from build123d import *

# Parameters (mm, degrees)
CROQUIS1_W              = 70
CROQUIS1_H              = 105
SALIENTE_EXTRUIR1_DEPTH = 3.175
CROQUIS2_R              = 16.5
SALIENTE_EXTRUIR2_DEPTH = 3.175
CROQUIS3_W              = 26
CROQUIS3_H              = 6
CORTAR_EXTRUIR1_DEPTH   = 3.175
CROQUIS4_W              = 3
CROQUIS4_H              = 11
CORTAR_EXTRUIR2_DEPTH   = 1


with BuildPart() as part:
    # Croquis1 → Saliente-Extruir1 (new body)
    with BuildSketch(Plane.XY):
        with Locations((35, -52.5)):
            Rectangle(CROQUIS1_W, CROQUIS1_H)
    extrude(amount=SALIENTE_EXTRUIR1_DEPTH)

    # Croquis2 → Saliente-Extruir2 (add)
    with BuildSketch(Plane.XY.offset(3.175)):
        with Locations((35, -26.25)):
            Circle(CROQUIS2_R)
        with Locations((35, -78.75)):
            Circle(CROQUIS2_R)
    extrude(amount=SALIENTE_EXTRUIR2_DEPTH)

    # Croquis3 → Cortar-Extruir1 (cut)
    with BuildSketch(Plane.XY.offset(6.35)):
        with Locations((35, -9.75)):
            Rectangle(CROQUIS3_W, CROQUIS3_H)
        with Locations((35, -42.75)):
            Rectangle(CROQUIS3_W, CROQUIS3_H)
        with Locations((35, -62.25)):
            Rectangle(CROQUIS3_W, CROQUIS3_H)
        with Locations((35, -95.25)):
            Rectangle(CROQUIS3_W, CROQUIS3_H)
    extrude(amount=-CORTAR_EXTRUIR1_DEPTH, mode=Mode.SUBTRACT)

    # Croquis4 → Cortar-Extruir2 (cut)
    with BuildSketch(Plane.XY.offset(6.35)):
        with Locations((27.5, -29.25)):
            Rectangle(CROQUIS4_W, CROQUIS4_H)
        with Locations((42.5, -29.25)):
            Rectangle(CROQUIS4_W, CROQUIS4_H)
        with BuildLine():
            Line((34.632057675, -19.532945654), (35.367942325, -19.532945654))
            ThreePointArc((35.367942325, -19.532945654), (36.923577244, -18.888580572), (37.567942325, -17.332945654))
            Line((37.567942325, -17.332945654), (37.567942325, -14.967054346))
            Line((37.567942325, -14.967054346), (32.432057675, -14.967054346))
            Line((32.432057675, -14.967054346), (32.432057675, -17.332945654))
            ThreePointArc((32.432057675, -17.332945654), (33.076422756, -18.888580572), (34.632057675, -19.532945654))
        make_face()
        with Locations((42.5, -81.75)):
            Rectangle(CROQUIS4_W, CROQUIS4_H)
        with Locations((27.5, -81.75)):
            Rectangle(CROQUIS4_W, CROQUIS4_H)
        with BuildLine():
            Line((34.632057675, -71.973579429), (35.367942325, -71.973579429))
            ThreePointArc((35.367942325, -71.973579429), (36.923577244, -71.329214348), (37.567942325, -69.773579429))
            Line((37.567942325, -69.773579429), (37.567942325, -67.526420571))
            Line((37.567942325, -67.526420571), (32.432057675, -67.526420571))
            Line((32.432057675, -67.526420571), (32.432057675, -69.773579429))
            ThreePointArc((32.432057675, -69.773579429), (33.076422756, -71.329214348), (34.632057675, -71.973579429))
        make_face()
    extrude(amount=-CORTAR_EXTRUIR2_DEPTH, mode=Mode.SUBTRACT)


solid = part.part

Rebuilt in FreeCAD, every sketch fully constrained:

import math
import FreeCAD as App
import Part
import Sketcher

V = App.Vector
Q = App.Units.Quantity

doc = App.newDocument("Part")
body = doc.addObject("PartDesign::Body", "Body")

# Sketch on XY plane
sketch1 = body.newObject("Sketcher::SketchObject", "Sketch")
sketch1.AttachmentSupport = (doc.getObject("XY_Plane"), [""])
sketch1.MapMode = "FlatFace"
sketch1.addGeometry(Part.LineSegment(V(0, 0, 0), V(0, -105, 0)), False)
sketch1.addGeometry(Part.LineSegment(V(0, -105, 0), V(70, -105, 0)), False)
sketch1.addGeometry(Part.LineSegment(V(70, -105, 0), V(70, 0, 0)), False)
sketch1.addGeometry(Part.LineSegment(V(70, 0, 0), V(0, 0, 0)), False)
sketch1.addConstraint(Sketcher.Constraint("Coincident", 0, 2, 1, 1))
sketch1.addConstraint(Sketcher.Constraint("Coincident", 1, 2, 2, 1))
sketch1.addConstraint(Sketcher.Constraint("Coincident", 2, 2, 3, 1))
sketch1.addConstraint(Sketcher.Constraint("Coincident", 3, 2, 0, 1))
sketch1.addConstraint(Sketcher.Constraint("Vertical", 0))
sketch1.addConstraint(Sketcher.Constraint("Horizontal", 1))
sketch1.addConstraint(Sketcher.Constraint("Vertical", 2))
sketch1.addConstraint(Sketcher.Constraint("Horizontal", 3))
sketch1.addConstraint(Sketcher.Constraint("Coincident", 3, 2, -1, 1))
sketch1.addConstraint(Sketcher.Constraint("DistanceX", 1, 1, 1, 2, Q("70 mm")))
sketch1.addConstraint(Sketcher.Constraint("DistanceY", 0, 2, 0, 1, Q("105 mm")))
pad1 = body.newObject("PartDesign::Pad", "Pad")
pad1.Profile = sketch1
pad1.Length = 3.175

# Sketch on XY plane
sketch2 = body.newObject("Sketcher::SketchObject", "Sketch001")
sketch2.AttachmentSupport = (doc.getObject("XY_Plane"), [""])
sketch2.MapMode = "FlatFace"
sketch2.AttachmentOffset = App.Placement(V(0, 0, 3.175), App.Rotation())
sketch2.addGeometry(Part.Circle(V(35, -26, 0), V(0, 0, 1), 16), False)
sketch2.addGeometry(Part.Circle(V(35, -79, 0), V(0, 0, 1), 16), False)
sketch2.addConstraint(Sketcher.Constraint("Equal", 0, 1))
sketch2.addConstraint(Sketcher.Constraint("Vertical", 0, 3, 1, 3))
sketch2.addConstraint(Sketcher.Constraint("Diameter", 0, Q("33 mm")))
sketch2.addConstraint(Sketcher.Constraint("DistanceX", -1, 1, 0, 3, Q("35 mm")))
sketch2.addConstraint(Sketcher.Constraint("DistanceY", 1, 3, 0, 3, Q("52.5 mm")))
sketch2.addConstraint(Sketcher.Constraint("DistanceY", 0, 3, -1, 1, Q("26.25 mm")))
pad2 = body.newObject("PartDesign::Pad", "Pad001")
pad2.Profile = sketch2
pad2.Length = 3.175

# Sketch on XY plane
sketch3 = body.newObject("Sketcher::SketchObject", "Sketch002")
sketch3.AttachmentSupport = (doc.getObject("XY_Plane"), [""])
sketch3.MapMode = "FlatFace"
sketch3.AttachmentOffset = App.Placement(V(0, 0, 6.35), App.Rotation())
sketch3.addGeometry(Part.LineSegment(V(22, -7, 0), V(22, -13, 0)), False)
sketch3.addGeometry(Part.LineSegment(V(22, -13, 0), V(48, -13, 0)), False)
sketch3.addGeometry(Part.LineSegment(V(48, -13, 0), V(48, -7, 0)), False)
sketch3.addGeometry(Part.LineSegment(V(48, -7, 0), V(22, -7, 0)), False)
sketch3.addGeometry(Part.LineSegment(V(22, -40, 0), V(22, -46, 0)), False)
sketch3.addGeometry(Part.LineSegment(V(22, -46, 0), V(48, -46, 0)), False)
sketch3.addGeometry(Part.LineSegment(V(48, -46, 0), V(48, -40, 0)), False)
sketch3.addGeometry(Part.LineSegment(V(48, -40, 0), V(22, -40, 0)), False)
sketch3.addGeometry(Part.LineSegment(V(22, -59, 0), V(22, -65, 0)), False)
sketch3.addGeometry(Part.LineSegment(V(22, -65, 0), V(48, -65, 0)), False)
sketch3.addGeometry(Part.LineSegment(V(48, -65, 0), V(48, -59, 0)), False)
sketch3.addGeometry(Part.LineSegment(V(48, -59, 0), V(22, -59, 0)), False)
sketch3.addGeometry(Part.LineSegment(V(22, -92, 0), V(22, -98, 0)), False)
sketch3.addGeometry(Part.LineSegment(V(22, -98, 0), V(48, -98, 0)), False)
sketch3.addGeometry(Part.LineSegment(V(48, -98, 0), V(48, -92, 0)), False)
sketch3.addGeometry(Part.LineSegment(V(48, -92, 0), V(22, -92, 0)), False)
sketch3.addConstraint(Sketcher.Constraint("Coincident", 0, 2, 1, 1))
sketch3.addConstraint(Sketcher.Constraint("Coincident", 1, 2, 2, 1))
sketch3.addConstraint(Sketcher.Constraint("Coincident", 2, 2, 3, 1))
sketch3.addConstraint(Sketcher.Constraint("Coincident", 3, 2, 0, 1))
sketch3.addConstraint(Sketcher.Constraint("Coincident", 4, 2, 5, 1))
sketch3.addConstraint(Sketcher.Constraint("Coincident", 5, 2, 6, 1))
sketch3.addConstraint(Sketcher.Constraint("Coincident", 6, 2, 7, 1))
sketch3.addConstraint(Sketcher.Constraint("Coincident", 7, 2, 4, 1))
sketch3.addConstraint(Sketcher.Constraint("Coincident", 8, 2, 9, 1))
sketch3.addConstraint(Sketcher.Constraint("Coincident", 9, 2, 10, 1))
sketch3.addConstraint(Sketcher.Constraint("Coincident", 10, 2, 11, 1))
sketch3.addConstraint(Sketcher.Constraint("Coincident", 11, 2, 8, 1))
sketch3.addConstraint(Sketcher.Constraint("Coincident", 12, 2, 13, 1))
sketch3.addConstraint(Sketcher.Constraint("Coincident", 13, 2, 14, 1))
sketch3.addConstraint(Sketcher.Constraint("Coincident", 14, 2, 15, 1))
sketch3.addConstraint(Sketcher.Constraint("Coincident", 15, 2, 12, 1))
sketch3.addConstraint(Sketcher.Constraint("Vertical", 0))
sketch3.addConstraint(Sketcher.Constraint("Horizontal", 1))
sketch3.addConstraint(Sketcher.Constraint("Vertical", 2))
sketch3.addConstraint(Sketcher.Constraint("Horizontal", 3))
sketch3.addConstraint(Sketcher.Constraint("Vertical", 4))
sketch3.addConstraint(Sketcher.Constraint("Horizontal", 5))
sketch3.addConstraint(Sketcher.Constraint("Vertical", 6))
sketch3.addConstraint(Sketcher.Constraint("Horizontal", 7))
sketch3.addConstraint(Sketcher.Constraint("Vertical", 8))
sketch3.addConstraint(Sketcher.Constraint("Horizontal", 9))
sketch3.addConstraint(Sketcher.Constraint("Vertical", 10))
sketch3.addConstraint(Sketcher.Constraint("Horizontal", 11))
sketch3.addConstraint(Sketcher.Constraint("Vertical", 12))
sketch3.addConstraint(Sketcher.Constraint("Horizontal", 13))
sketch3.addConstraint(Sketcher.Constraint("Vertical", 14))
sketch3.addConstraint(Sketcher.Constraint("Horizontal", 15))
sketch3.addConstraint(Sketcher.Constraint("Vertical", 3, 2, 4, 2))
sketch3.addConstraint(Sketcher.Constraint("Vertical", 2, 2, 5, 2))
sketch3.addConstraint(Sketcher.Constraint("Vertical", 7, 2, 8, 2))
sketch3.addConstraint(Sketcher.Constraint("Vertical", 6, 2, 9, 2))
sketch3.addConstraint(Sketcher.Constraint("Vertical", 11, 2, 12, 2))
sketch3.addConstraint(Sketcher.Constraint("Vertical", 10, 2, 13, 2))
sketch3.addConstraint(Sketcher.Constraint("Equal", 2, 4))
sketch3.addConstraint(Sketcher.Constraint("Equal", 6, 8))
sketch3.addConstraint(Sketcher.Constraint("Equal", 10, 12))
sketch3.addConstraint(Sketcher.Constraint("DistanceX", 1, 1, 1, 2, Q("26 mm")))
sketch3.addConstraint(Sketcher.Constraint("DistanceY", 0, 2, 0, 1, Q("6 mm")))
sketch3.addConstraint(Sketcher.Constraint("DistanceX", -1, 1, 0, 2, Q("22 mm")))
sketch3.addConstraint(Sketcher.Constraint("DistanceY", 4, 2, 0, 2, Q("33 mm")))
sketch3.addConstraint(Sketcher.Constraint("DistanceY", 12, 2, 8, 2, Q("33 mm")))
sketch3.addConstraint(Sketcher.Constraint("DistanceY", 8, 2, 4, 2, Q("19.5 mm")))
sketch3.addConstraint(Sketcher.Constraint("DistanceY", 0, 2, -1, 1, Q("12.75 mm")))
pocket1 = body.newObject("PartDesign::Pocket", "Pocket")
pocket1.Profile = sketch3
pocket1.Length = 3.175

# Sketch on XY plane
sketch4 = body.newObject("Sketcher::SketchObject", "Sketch003")
sketch4.AttachmentSupport = (doc.getObject("XY_Plane"), [""])
sketch4.MapMode = "FlatFace"
sketch4.AttachmentOffset = App.Placement(V(0, 0, 6.35), App.Rotation())
sketch4.addGeometry(Part.LineSegment(V(26, -23.8, 0), V(26, -34.8, 0)), False)
sketch4.addGeometry(Part.LineSegment(V(26, -34.8, 0), V(29, -34.8, 0)), False)
sketch4.addGeometry(Part.LineSegment(V(29, -34.8, 0), V(29, -23.8, 0)), False)
sketch4.addGeometry(Part.LineSegment(V(29, -23.8, 0), V(26, -23.8, 0)), False)
sketch4.addGeometry(Part.LineSegment(V(41, -23.8, 0), V(41, -34.8, 0)), False)
sketch4.addGeometry(Part.LineSegment(V(41, -34.8, 0), V(44, -34.8, 0)), False)
sketch4.addGeometry(Part.LineSegment(V(44, -34.8, 0), V(44, -23.8, 0)), False)
sketch4.addGeometry(Part.LineSegment(V(44, -23.8, 0), V(41, -23.8, 0)), False)
sketch4.addGeometry(Part.LineSegment(V(34.6, -19.5, 0), V(35.4, -19.5, 0)), False)
sketch4.addGeometry(Part.ArcOfCircle(Part.Circle(V(35.4, -17.3, 0), V(0, 0, 1), 2.2), math.radians(-90), math.radians(0)), False)
sketch4.addGeometry(Part.LineSegment(V(37.6, -17.3, 0), V(37.6, -15, 0)), False)
sketch4.addGeometry(Part.LineSegment(V(37.6, -15, 0), V(32.4, -15, 0)), False)
sketch4.addGeometry(Part.LineSegment(V(32.4, -15, 0), V(32.4, -17.3, 0)), False)
sketch4.addGeometry(Part.ArcOfCircle(Part.Circle(V(34.6, -17.3, 0), V(0, 0, 1), 2.2), math.radians(180), math.radians(270)), False)
sketch4.addGeometry(Part.LineSegment(V(41, -76.2, 0), V(41, -87.2, 0)), False)
sketch4.addGeometry(Part.LineSegment(V(41, -87.2, 0), V(44, -87.2, 0)), False)
sketch4.addGeometry(Part.LineSegment(V(44, -87.2, 0), V(44, -76.2, 0)), False)
sketch4.addGeometry(Part.LineSegment(V(44, -76.2, 0), V(41, -76.2, 0)), False)
sketch4.addGeometry(Part.LineSegment(V(26, -76.2, 0), V(26, -87.2, 0)), False)
sketch4.addGeometry(Part.LineSegment(V(26, -87.2, 0), V(29, -87.2, 0)), False)
sketch4.addGeometry(Part.LineSegment(V(29, -87.2, 0), V(29, -76.2, 0)), False)
sketch4.addGeometry(Part.LineSegment(V(29, -76.2, 0), V(26, -76.2, 0)), False)
sketch4.addGeometry(Part.LineSegment(V(34.6, -72, 0), V(35.4, -72, 0)), False)
sketch4.addGeometry(Part.ArcOfCircle(Part.Circle(V(35.4, -69.8, 0), V(0, 0, 1), 2.2), math.radians(-90), math.radians(0)), False)
sketch4.addGeometry(Part.LineSegment(V(37.6, -69.8, 0), V(37.6, -67.5, 0)), False)
sketch4.addGeometry(Part.LineSegment(V(37.6, -67.5, 0), V(32.4, -67.5, 0)), False)
sketch4.addGeometry(Part.LineSegment(V(32.4, -67.5, 0), V(32.4, -69.8, 0)), False)
sketch4.addGeometry(Part.ArcOfCircle(Part.Circle(V(34.6, -69.8, 0), V(0, 0, 1), 2.2), math.radians(180), math.radians(270)), False)
sketch4.addConstraint(Sketcher.Constraint("Coincident", 0, 2, 1, 1))
sketch4.addConstraint(Sketcher.Constraint("Coincident", 1, 2, 2, 1))
sketch4.addConstraint(Sketcher.Constraint("Coincident", 2, 2, 3, 1))
sketch4.addConstraint(Sketcher.Constraint("Coincident", 3, 2, 0, 1))
sketch4.addConstraint(Sketcher.Constraint("Coincident", 4, 2, 5, 1))
sketch4.addConstraint(Sketcher.Constraint("Coincident", 5, 2, 6, 1))
sketch4.addConstraint(Sketcher.Constraint("Coincident", 6, 2, 7, 1))
sketch4.addConstraint(Sketcher.Constraint("Coincident", 7, 2, 4, 1))
sketch4.addConstraint(Sketcher.Constraint("Tangent", 8, 2, 9, 1))
sketch4.addConstraint(Sketcher.Constraint("Tangent", 9, 2, 10, 1))
sketch4.addConstraint(Sketcher.Constraint("Coincident", 10, 2, 11, 1))
sketch4.addConstraint(Sketcher.Constraint("Coincident", 11, 2, 12, 1))
sketch4.addConstraint(Sketcher.Constraint("Tangent", 12, 2, 13, 1))
sketch4.addConstraint(Sketcher.Constraint("Tangent", 13, 2, 8, 1))
sketch4.addConstraint(Sketcher.Constraint("Coincident", 14, 2, 15, 1))
sketch4.addConstraint(Sketcher.Constraint("Coincident", 15, 2, 16, 1))
sketch4.addConstraint(Sketcher.Constraint("Coincident", 16, 2, 17, 1))
sketch4.addConstraint(Sketcher.Constraint("Coincident", 17, 2, 14, 1))
sketch4.addConstraint(Sketcher.Constraint("Coincident", 18, 2, 19, 1))
sketch4.addConstraint(Sketcher.Constraint("Coincident", 19, 2, 20, 1))
sketch4.addConstraint(Sketcher.Constraint("Coincident", 20, 2, 21, 1))
sketch4.addConstraint(Sketcher.Constraint("Coincident", 21, 2, 18, 1))
sketch4.addConstraint(Sketcher.Constraint("Tangent", 22, 2, 23, 1))
sketch4.addConstraint(Sketcher.Constraint("Tangent", 23, 2, 24, 1))
sketch4.addConstraint(Sketcher.Constraint("Coincident", 24, 2, 25, 1))
sketch4.addConstraint(Sketcher.Constraint("Coincident", 25, 2, 26, 1))
sketch4.addConstraint(Sketcher.Constraint("Tangent", 26, 2, 27, 1))
sketch4.addConstraint(Sketcher.Constraint("Tangent", 27, 2, 22, 1))
sketch4.addConstraint(Sketcher.Constraint("Vertical", 0))
sketch4.addConstraint(Sketcher.Constraint("Horizontal", 1))
sketch4.addConstraint(Sketcher.Constraint("Vertical", 2))
sketch4.addConstraint(Sketcher.Constraint("Horizontal", 3))
sketch4.addConstraint(Sketcher.Constraint("Vertical", 4))
sketch4.addConstraint(Sketcher.Constraint("Horizontal", 5))
sketch4.addConstraint(Sketcher.Constraint("Vertical", 6))
sketch4.addConstraint(Sketcher.Constraint("Horizontal", 7))
sketch4.addConstraint(Sketcher.Constraint("Horizontal", 8))
sketch4.addConstraint(Sketcher.Constraint("Vertical", 10))
sketch4.addConstraint(Sketcher.Constraint("Horizontal", 11))
sketch4.addConstraint(Sketcher.Constraint("Vertical", 12))
sketch4.addConstraint(Sketcher.Constraint("Vertical", 14))
sketch4.addConstraint(Sketcher.Constraint("Horizontal", 15))
sketch4.addConstraint(Sketcher.Constraint("Vertical", 16))
sketch4.addConstraint(Sketcher.Constraint("Horizontal", 17))
sketch4.addConstraint(Sketcher.Constraint("Vertical", 18))
sketch4.addConstraint(Sketcher.Constraint("Horizontal", 19))
sketch4.addConstraint(Sketcher.Constraint("Vertical", 20))
sketch4.addConstraint(Sketcher.Constraint("Horizontal", 21))
sketch4.addConstraint(Sketcher.Constraint("Horizontal", 22))
sketch4.addConstraint(Sketcher.Constraint("Vertical", 24))
sketch4.addConstraint(Sketcher.Constraint("Horizontal", 25))
sketch4.addConstraint(Sketcher.Constraint("Vertical", 26))
sketch4.addConstraint(Sketcher.Constraint("Equal", 9, 13))
sketch4.addConstraint(Sketcher.Constraint("Equal", 13, 23))
sketch4.addConstraint(Sketcher.Constraint("Equal", 23, 27))
sketch4.addConstraint(Sketcher.Constraint("Horizontal", 1, 2, 4, 2))
sketch4.addConstraint(Sketcher.Constraint("Horizontal", 3, 2, 6, 2))
sketch4.addConstraint(Sketcher.Constraint("Horizontal", 15, 2, 18, 2))
sketch4.addConstraint(Sketcher.Constraint("Horizontal", 17, 2, 20, 2))
sketch4.addConstraint(Sketcher.Constraint("Vertical", 9, 3, 23, 3))
sketch4.addConstraint(Sketcher.Constraint("Vertical", 13, 3, 27, 3))
sketch4.addConstraint(Sketcher.Constraint("Vertical", 7, 2, 14, 2))
sketch4.addConstraint(Sketcher.Constraint("Vertical", 6, 2, 15, 2))
sketch4.addConstraint(Sketcher.Constraint("Vertical", 3, 2, 18, 2))
sketch4.addConstraint(Sketcher.Constraint("Vertical", 2, 2, 19, 2))
sketch4.addConstraint(Sketcher.Constraint("Equal", 3, 5))
sketch4.addConstraint(Sketcher.Constraint("Equal", 6, 14))
sketch4.addConstraint(Sketcher.Constraint("Radius", 9, Q("2.2 mm")))
sketch4.addConstraint(Sketcher.Constraint("DistanceX", 1, 1, 1, 2, Q("3 mm")))
sketch4.addConstraint(Sketcher.Constraint("DistanceY", 0, 2, 0, 1, Q("11 mm")))
sketch4.addConstraint(Sketcher.Constraint("DistanceX", -1, 1, 0, 2, Q("26 mm")))
sketch4.addConstraint(Sketcher.Constraint("DistanceX", -1, 1, 4, 2, Q("41 mm")))
sketch4.addConstraint(Sketcher.Constraint("DistanceY", 14, 2, 4, 2, Q("52.5 mm")))
sketch4.addConstraint(Sketcher.Constraint("DistanceY", 0, 2, -1, 1, Q("34.75 mm")))
sketch4.addConstraint(Sketcher.Constraint("DistanceY", 10, 1, 10, 2, Q("2.365891 mm")))
sketch4.addConstraint(Sketcher.Constraint("DistanceY", 24, 1, 24, 2, Q("2.247159 mm")))
sketch4.addConstraint(Sketcher.Constraint("DistanceX", 8, 1, 8, 2, Q("0.735885 mm")))
sketch4.addConstraint(Sketcher.Constraint("DistanceY", 23, 3, -1, 1, Q("69.773579 mm")))
sketch4.addConstraint(Sketcher.Constraint("DistanceX", -1, 1, 9, 3, Q("35.367942 mm")))
sketch4.addConstraint(Sketcher.Constraint("DistanceY", 9, 3, -1, 1, Q("17.332946 mm")))
pocket2 = body.newObject("PartDesign::Pocket", "Pocket001")
pocket2.Profile = sketch4
pocket2.Length = 1

doc.recompute()
